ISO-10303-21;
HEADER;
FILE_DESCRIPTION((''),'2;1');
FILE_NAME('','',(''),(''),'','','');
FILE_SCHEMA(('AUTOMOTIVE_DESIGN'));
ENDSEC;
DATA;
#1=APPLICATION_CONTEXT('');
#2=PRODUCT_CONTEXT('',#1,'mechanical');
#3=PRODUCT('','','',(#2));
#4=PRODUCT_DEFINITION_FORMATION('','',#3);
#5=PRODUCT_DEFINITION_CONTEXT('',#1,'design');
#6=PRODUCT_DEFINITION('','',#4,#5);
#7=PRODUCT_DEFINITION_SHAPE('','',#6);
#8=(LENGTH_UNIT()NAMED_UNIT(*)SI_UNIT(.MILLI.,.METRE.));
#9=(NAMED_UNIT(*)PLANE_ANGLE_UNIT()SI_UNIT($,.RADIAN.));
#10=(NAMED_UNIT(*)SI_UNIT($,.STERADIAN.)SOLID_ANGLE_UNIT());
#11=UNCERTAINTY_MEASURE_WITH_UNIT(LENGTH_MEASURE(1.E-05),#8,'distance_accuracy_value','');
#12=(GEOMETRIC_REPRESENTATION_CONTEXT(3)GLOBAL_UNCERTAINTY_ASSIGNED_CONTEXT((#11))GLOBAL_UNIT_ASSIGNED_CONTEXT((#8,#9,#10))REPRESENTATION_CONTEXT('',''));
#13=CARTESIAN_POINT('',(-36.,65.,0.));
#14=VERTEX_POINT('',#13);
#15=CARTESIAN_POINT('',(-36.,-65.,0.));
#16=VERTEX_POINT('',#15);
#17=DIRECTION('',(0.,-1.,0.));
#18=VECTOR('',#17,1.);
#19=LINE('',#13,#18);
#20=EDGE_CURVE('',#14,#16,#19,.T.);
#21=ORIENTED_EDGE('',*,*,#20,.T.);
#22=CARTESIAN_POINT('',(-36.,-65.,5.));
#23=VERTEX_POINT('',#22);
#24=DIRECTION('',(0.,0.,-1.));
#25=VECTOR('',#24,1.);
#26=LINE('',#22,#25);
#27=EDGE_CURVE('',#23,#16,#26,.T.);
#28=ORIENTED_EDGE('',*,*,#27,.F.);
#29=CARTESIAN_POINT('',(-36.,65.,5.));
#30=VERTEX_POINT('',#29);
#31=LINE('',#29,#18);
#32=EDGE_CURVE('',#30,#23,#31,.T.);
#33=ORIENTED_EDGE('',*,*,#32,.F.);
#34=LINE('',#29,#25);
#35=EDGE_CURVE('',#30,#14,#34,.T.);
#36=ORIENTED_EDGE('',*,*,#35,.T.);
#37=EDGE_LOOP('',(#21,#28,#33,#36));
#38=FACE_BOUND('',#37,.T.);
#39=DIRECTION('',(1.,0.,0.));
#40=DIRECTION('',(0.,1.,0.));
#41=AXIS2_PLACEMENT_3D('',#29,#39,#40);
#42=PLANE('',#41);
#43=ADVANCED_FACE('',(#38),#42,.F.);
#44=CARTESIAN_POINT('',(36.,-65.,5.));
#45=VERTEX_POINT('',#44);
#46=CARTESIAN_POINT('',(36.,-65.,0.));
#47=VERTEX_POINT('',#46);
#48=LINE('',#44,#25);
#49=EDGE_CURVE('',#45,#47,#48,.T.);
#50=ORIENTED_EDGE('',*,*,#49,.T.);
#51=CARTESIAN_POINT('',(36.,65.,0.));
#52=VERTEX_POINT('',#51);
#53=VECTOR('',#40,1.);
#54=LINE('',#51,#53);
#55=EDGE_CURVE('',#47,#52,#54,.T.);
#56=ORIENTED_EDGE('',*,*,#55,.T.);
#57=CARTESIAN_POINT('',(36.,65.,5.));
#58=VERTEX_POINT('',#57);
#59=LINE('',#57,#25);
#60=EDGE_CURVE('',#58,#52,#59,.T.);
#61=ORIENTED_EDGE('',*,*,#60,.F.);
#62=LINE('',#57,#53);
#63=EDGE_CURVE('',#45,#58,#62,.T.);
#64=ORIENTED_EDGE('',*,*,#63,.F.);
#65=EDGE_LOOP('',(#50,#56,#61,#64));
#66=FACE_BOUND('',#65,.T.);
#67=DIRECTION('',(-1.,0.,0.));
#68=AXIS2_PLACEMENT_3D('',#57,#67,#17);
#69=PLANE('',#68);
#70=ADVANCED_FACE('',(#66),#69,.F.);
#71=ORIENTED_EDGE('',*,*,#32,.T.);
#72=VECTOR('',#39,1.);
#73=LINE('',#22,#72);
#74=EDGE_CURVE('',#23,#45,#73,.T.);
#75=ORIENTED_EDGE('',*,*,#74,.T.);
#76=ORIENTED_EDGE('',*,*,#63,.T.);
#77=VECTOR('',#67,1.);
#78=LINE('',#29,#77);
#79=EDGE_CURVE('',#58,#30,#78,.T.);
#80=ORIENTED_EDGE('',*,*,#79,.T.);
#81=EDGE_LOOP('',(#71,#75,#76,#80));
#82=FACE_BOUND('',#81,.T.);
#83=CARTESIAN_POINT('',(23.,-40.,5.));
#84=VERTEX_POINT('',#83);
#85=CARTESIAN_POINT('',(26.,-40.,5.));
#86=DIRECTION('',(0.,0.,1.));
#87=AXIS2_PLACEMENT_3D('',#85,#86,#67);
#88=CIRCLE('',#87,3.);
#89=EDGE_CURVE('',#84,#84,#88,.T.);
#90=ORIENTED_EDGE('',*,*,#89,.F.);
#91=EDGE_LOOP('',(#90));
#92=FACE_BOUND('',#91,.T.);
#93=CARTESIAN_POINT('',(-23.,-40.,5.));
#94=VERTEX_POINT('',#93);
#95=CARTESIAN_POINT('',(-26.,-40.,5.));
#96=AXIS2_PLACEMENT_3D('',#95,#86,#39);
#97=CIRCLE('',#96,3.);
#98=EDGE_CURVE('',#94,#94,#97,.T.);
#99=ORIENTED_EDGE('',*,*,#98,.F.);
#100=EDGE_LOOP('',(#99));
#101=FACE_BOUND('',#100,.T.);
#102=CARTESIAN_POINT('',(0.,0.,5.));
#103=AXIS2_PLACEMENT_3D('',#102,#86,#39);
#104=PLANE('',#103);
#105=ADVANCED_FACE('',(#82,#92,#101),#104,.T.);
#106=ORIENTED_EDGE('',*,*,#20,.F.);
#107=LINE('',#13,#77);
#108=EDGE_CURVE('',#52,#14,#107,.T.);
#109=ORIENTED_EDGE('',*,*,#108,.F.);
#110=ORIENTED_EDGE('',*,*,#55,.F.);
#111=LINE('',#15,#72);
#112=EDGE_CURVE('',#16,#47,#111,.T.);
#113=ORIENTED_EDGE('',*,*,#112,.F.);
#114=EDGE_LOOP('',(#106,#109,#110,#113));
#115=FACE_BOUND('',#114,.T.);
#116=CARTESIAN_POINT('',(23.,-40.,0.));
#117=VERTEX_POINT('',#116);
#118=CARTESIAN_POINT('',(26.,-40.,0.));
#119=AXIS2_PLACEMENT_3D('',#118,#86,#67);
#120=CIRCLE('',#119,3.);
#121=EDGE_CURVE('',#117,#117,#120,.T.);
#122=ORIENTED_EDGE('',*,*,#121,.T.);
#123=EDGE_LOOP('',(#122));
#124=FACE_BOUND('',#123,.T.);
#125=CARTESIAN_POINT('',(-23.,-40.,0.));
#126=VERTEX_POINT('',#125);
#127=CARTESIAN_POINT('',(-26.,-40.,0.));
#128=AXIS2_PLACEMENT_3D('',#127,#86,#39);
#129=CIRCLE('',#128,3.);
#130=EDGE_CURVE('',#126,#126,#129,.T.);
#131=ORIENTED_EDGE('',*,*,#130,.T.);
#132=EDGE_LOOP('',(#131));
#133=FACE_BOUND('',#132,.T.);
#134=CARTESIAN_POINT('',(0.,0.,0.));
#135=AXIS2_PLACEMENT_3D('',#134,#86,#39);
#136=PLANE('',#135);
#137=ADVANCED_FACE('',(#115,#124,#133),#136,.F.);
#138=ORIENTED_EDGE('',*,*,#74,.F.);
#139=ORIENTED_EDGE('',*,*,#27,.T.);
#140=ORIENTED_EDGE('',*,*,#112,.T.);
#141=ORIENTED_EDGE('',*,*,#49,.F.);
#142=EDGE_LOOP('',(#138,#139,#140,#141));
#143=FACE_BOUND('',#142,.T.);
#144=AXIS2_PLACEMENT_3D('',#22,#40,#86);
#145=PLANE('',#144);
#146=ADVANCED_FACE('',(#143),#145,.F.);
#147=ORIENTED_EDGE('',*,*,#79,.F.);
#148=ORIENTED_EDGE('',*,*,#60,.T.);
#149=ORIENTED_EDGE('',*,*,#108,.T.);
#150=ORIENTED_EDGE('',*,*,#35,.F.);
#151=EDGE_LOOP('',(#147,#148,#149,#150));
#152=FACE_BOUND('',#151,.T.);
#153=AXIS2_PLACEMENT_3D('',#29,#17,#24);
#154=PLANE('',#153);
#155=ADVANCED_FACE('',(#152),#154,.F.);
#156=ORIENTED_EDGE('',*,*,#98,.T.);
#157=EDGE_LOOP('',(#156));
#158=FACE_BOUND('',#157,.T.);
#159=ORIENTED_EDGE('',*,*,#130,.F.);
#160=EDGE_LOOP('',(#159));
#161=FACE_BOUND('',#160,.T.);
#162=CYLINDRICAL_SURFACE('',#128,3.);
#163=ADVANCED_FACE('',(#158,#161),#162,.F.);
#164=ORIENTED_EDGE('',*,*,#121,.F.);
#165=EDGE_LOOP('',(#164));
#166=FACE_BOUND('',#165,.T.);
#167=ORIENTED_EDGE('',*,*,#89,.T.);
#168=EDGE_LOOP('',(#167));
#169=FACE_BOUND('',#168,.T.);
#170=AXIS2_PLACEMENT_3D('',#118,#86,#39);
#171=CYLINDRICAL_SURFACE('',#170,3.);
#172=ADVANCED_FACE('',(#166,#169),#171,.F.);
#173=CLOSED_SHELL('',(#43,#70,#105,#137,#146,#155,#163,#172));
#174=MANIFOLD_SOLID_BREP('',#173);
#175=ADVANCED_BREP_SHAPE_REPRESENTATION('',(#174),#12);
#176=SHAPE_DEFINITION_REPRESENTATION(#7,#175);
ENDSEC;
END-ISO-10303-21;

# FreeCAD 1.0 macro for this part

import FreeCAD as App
import Part
import Sketcher
Q = App.Units.Quantity


def add_polygon(sketch, points):
    """Adds a closed chain of lines whose ends are joined by coincident constraints."""
    first, n = sketch.GeometryCount, len(points)
    for a, b in zip(points, points[1:] + points[:1]):
        sketch.addGeometry(Part.LineSegment(App.Vector(*a, 0), App.Vector(*b, 0)), False)
    for i in range(n):
        sketch.addConstraint(Sketcher.Constraint("Coincident", first + i, 2, first + (i + 1) % n, 1))

doc = App.newDocument("Part")
body = doc.addObject("PartDesign::Body", "Body")

# Sketch on XY plane
sketch1 = doc.addObject("Sketcher::SketchObject", "Sketch")
body.addObject(sketch1)
sketch1.AttachmentSupport = (doc.XY_Plane, [""])
sketch1.MapMode = "FlatFace"
add_polygon(sketch1, [(-36, 65), (-36, -65), (36, -65), (36, 65)])  # lines 0-3
sketch1.addConstraint(Sketcher.Constraint("Vertical", 0))
sketch1.addConstraint(Sketcher.Constraint("Horizontal", 1))
sketch1.addConstraint(Sketcher.Constraint("Vertical", 2))
sketch1.addConstraint(Sketcher.Constraint("Horizontal", 3))
sketch1.addConstraint(Sketcher.Constraint("Symmetric", 0, 2, 2, 2, -1, 1))
sketch1.addConstraint(Sketcher.Constraint("DistanceX", 1, 1, 1, 2, Q("72 mm")))
sketch1.addConstraint(Sketcher.Constraint("DistanceY", 0, 2, 0, 1, Q("130 mm")))
pad1 = doc.addObject("PartDesign::Pad", "Pad")
body.addObject(pad1)
pad1.Profile = sketch1
pad1.Length = 5

# Sketch on XY plane
sketch2 = doc.addObject("Sketcher::SketchObject", "Sketch001")
body.addObject(sketch2)
sketch2.AttachmentSupport = (doc.XY_Plane, [""])
sketch2.MapMode = "FlatFace"
sketch2.AttachmentOffset = App.Placement(App.Vector(0, 0, 5), App.Rotation())
sketch2.addGeometry(Part.Circle(App.Vector(-26, -40, 0), App.Vector(0, 0, 1), 3), False)
sketch2.addGeometry(Part.Circle(App.Vector(26, -40, 0), App.Vector(0, 0, 1), 3), False)
sketch2.addConstraint(Sketcher.Constraint("Equal", 0, 1))
sketch2.addConstraint(Sketcher.Constraint("Symmetric", 0, 3, 1, 3, -2))
sketch2.addConstraint(Sketcher.Constraint("Diameter", 0, Q("6 mm")))
sketch2.addConstraint(Sketcher.Constraint("DistanceX", 0, 3, -1, 1, Q("26 mm")))
sketch2.addConstraint(Sketcher.Constraint("DistanceY", 0, 3, -1, 1, Q("40 mm")))
pocket1 = doc.addObject("PartDesign::Pocket", "Pocket")
body.addObject(pocket1)
pocket1.Profile = sketch2
pocket1.Length = 5

doc.recompute()
